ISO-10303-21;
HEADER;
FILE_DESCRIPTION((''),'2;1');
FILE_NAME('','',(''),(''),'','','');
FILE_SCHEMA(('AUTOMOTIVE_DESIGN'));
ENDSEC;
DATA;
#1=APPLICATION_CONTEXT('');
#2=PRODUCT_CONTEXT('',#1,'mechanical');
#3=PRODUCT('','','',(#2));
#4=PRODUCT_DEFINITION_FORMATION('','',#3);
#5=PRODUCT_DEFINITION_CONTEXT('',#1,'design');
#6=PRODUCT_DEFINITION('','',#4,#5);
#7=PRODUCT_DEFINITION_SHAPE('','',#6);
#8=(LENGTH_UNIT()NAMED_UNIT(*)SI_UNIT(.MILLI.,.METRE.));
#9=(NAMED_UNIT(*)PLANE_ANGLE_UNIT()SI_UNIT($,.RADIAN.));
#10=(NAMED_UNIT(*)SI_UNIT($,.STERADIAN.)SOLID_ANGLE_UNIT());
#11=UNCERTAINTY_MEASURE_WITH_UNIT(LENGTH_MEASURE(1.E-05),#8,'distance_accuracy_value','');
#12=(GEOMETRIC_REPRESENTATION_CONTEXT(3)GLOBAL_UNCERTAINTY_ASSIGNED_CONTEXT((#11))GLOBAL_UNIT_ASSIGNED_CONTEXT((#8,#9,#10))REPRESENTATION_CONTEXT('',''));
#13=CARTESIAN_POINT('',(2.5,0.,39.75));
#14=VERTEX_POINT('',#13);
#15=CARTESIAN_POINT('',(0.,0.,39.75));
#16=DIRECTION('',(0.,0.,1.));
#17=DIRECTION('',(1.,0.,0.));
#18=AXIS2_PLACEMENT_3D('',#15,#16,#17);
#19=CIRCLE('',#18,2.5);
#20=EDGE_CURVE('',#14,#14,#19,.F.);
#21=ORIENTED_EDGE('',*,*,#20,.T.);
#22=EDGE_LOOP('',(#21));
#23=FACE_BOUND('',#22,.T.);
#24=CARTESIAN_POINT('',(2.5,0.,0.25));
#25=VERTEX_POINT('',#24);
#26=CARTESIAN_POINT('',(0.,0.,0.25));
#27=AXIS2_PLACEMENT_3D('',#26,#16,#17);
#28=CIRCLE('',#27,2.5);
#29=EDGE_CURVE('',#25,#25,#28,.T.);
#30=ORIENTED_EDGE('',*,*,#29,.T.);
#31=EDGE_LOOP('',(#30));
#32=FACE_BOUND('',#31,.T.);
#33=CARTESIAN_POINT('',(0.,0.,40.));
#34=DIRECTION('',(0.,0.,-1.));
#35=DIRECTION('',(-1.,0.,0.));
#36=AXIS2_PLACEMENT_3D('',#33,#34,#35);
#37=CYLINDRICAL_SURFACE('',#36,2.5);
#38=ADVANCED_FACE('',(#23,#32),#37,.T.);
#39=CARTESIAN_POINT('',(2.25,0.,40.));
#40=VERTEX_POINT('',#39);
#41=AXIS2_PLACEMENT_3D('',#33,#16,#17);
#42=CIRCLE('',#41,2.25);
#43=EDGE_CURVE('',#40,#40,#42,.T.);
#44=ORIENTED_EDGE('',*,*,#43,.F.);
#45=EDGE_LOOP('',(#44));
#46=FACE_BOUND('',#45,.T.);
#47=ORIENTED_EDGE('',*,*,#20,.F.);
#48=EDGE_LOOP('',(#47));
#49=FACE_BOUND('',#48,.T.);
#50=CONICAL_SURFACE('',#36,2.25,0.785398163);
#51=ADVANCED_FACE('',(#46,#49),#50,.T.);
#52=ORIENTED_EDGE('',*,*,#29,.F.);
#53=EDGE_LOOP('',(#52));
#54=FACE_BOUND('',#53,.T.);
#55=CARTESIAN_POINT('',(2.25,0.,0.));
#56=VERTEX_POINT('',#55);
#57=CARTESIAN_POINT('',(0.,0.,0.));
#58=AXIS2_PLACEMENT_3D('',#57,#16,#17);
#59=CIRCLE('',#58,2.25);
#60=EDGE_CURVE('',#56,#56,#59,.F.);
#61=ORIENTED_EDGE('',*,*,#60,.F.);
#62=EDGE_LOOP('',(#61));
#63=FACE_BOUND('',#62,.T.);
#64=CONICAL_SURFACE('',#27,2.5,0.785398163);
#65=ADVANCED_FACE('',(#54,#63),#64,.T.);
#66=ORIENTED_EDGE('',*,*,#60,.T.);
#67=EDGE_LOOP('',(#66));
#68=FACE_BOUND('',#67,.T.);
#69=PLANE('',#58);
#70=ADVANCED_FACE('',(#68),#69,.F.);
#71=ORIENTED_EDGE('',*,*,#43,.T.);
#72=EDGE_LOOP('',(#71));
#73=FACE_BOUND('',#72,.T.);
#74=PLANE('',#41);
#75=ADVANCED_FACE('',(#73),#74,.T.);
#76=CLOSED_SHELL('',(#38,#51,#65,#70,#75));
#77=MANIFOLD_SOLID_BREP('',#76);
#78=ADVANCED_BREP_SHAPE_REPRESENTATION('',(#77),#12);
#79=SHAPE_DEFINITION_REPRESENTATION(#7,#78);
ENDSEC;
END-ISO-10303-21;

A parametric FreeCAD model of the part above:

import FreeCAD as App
import Part
import Sketcher
from FreeCAD import Vector
Q = App.Units.Quantity


def edges_at(feature, points):
    """Names of the edges that pass closest to the given points."""
    edges = feature.Shape.Edges
    near = lambda p: min(range(len(edges)), key=lambda i: edges[i].distToShape(Part.Vertex(*p))[0])
    return sorted({f"Edge{near(p) + 1}" for p in points})

doc = App.newDocument("Part")
body = doc.addObject("PartDesign::Body", "Body")

# Sketch on XY plane
sketch1 = doc.addObject("Sketcher::SketchObject", "Sketch")
body.addObject(sketch1)
sketch1.AttachmentSupport = (doc.XY_Plane, [""])
sketch1.MapMode = "FlatFace"
sketch1.addGeometry(Part.Circle(Vector(0, 0, 0), Vector(0, 0, 1), 2.5), False)
sketch1.addConstraint([
    Sketcher.Constraint("Coincident", 0, 3, -1, 1),
    Sketcher.Constraint("Diameter", 0, Q("5 mm")),
])
pad1 = doc.addObject("PartDesign::Pad", "Pad")
body.addObject(pad1)
pad1.Profile = sketch1
pad1.Length = 40
doc.recompute()

chamfer = doc.addObject("PartDesign::Chamfer", "Chamfer")
body.addObject(chamfer)
chamfer.Base = (pad1, edges_at(pad1, [(-2.5, 0, 0), (-2.5, 0, 40)]))
chamfer.Size = 0.25

doc.recompute()
